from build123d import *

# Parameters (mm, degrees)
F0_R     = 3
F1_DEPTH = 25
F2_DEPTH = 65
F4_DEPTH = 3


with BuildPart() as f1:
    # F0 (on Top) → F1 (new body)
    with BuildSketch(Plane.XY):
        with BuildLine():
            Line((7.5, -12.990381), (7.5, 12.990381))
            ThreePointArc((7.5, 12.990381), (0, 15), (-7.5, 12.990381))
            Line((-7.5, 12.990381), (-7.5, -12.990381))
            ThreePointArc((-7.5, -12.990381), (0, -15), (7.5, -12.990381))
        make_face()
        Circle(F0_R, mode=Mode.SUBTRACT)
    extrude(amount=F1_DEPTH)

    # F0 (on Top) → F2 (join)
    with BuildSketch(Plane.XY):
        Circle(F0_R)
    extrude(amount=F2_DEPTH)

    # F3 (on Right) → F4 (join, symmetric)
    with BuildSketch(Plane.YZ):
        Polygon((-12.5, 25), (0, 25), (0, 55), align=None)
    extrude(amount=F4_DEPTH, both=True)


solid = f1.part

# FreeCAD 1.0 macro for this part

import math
import FreeCAD as App
import Part
import Sketcher
from FreeCAD import Vector


def add_polygon(sketch, points):
    """Adds a closed chain of lines whose ends are joined by coincident constraints."""
    first, n = sketch.GeometryCount, len(points)
    for a, b in zip(points, points[1:] + points[:1]):
        sketch.addGeometry(Part.LineSegment(App.Vector(*a, 0), App.Vector(*b, 0)), False)
    for i in range(n):
        sketch.addConstraint(Sketcher.Constraint("Coincident", first + i, 2, first + (i + 1) % n, 1))

doc = App.newDocument("Part")
body = doc.addObject("PartDesign::Body", "Body")

sketch1 = body.newObject("Sketcher::SketchObject", "Sketch")
sketch1.AttachmentSupport = (doc.getObject("XY_Plane"), [""])
sketch1.MapMode = "FlatFace"
sketch1.addGeometry([
    Part.LineSegment(Vector(7.5, -13, 0), Vector(7.5, 13, 0)),
    Part.ArcOfCircle(Part.Circle(Vector(0, 0, 0), Vector(0, 0, 1), 15), math.radians(60), math.radians(120)),
    Part.LineSegment(Vector(-7.5, 13, 0), Vector(-7.5, -13, 0)),
    Part.ArcOfCircle(Part.Circle(Vector(0, 0, 0), Vector(0, 0, 1), 15), math.radians(-120), math.radians(-60)),
    Part.Circle(Vector(0, 0, 0), Vector(0, 0, 1), 3),
], False)
sketch1.addConstraint([
    Sketcher.Constraint("Coincident", 0, 2, 1, 1),
    Sketcher.Constraint("Coincident", 1, 2, 2, 1),
    Sketcher.Constraint("Coincident", 2, 2, 3, 1),
    Sketcher.Constraint("Coincident", 3, 2, 0, 1),
    Sketcher.Constraint("Vertical", 0),
    Sketcher.Constraint("Vertical", 2),
    Sketcher.Constraint("Coincident", 1, 3, -1, 1),
    Sketcher.Constraint("Coincident", 3, 3, -1, 1),
    Sketcher.Constraint("Coincident", 4, 3, -1, 1),
    Sketcher.Constraint("Equal", 1, 3),
    Sketcher.Constraint("Horizontal", 0, 2, 1, 2),
    Sketcher.Constraint("Diameter", 4, 6.0),
    Sketcher.Constraint("Radius", 1, 15.0),
    Sketcher.Constraint("DistanceX", 1, 2, 0, 2, 15.0),
])
pad1 = body.newObject("PartDesign::Pad", "Pad")
pad1.Profile = sketch1
pad1.Length = 25

sketch2 = body.newObject("Sketcher::SketchObject", "Sketch001")
sketch2.AttachmentSupport = (doc.getObject("XY_Plane"), [""])
sketch2.MapMode = "FlatFace"
sketch2.addGeometry(Part.Circle(Vector(0, 0, 0), Vector(0, 0, 1), 3), False)
sketch2.addConstraint([
    Sketcher.Constraint("Coincident", 0, 3, -1, 1),
    Sketcher.Constraint("Diameter", 0, 6.0),
])
pad2 = body.newObject("PartDesign::Pad", "Pad001")
pad2.Profile = sketch2
pad2.Length = 65

sketch3 = body.newObject("Sketcher::SketchObject", "Sketch002")
sketch3.AttachmentSupport = (doc.getObject("YZ_Plane"), [""])
sketch3.MapMode = "FlatFace"
add_polygon(sketch3, [(-12, 25), (0, 25), (0, 55)])
sketch3.addConstraint([
    Sketcher.Constraint("Horizontal", 0),
    Sketcher.Constraint("Vertical", 1),
    Sketcher.Constraint("PointOnObject", 0, 2, -2),
    Sketcher.Constraint("DistanceY", 1, 1, 1, 2, 30.0),
    Sketcher.Constraint("DistanceX", 0, 1, 0, 2, 12.5),
    Sketcher.Constraint("DistanceY", -1, 1, 0, 2, 25.0),
])
pad3 = body.newObject("PartDesign::Pad", "Pad002")
pad3.Profile = sketch3
pad3.Length = 6
pad3.Midplane = True

doc.recompute()
